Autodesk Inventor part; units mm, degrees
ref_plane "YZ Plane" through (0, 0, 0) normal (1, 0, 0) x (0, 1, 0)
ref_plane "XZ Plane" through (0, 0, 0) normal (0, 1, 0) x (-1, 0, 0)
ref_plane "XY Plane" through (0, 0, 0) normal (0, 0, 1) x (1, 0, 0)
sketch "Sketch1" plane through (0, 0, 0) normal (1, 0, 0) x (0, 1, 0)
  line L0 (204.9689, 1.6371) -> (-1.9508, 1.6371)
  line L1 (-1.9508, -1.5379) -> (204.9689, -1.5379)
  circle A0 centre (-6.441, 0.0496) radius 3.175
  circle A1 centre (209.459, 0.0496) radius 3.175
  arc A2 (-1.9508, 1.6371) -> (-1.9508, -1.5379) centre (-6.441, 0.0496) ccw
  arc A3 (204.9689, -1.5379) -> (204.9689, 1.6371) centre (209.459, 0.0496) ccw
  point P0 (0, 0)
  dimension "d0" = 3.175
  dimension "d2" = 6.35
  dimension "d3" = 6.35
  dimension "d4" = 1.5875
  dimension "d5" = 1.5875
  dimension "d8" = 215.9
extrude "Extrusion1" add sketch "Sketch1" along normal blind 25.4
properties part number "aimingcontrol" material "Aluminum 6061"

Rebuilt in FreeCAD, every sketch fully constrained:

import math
import FreeCAD as App
import Part
import Sketcher
from FreeCAD import Vector
Q = App.Units.Quantity

doc = App.newDocument("Part")
params = doc.addObject("Spreadsheet::Sheet", "Params")
for row, (alias, value) in enumerate([
    ("sketch1_diameter", "0.25 in"),
    ("sketch1_radius", "0.1875 in"),
    ("sketch1_height", "0.0625 in"),
    ("pad1_length", "1 in"),
], start=1):
    params.set(f"A{row}", alias)
    params.set(f"B{row}", "=" + value)
    params.setAlias(f"B{row}", alias)

body = doc.addObject("PartDesign::Body", "Body")

sketch1 = doc.addObject("Sketcher::SketchObject", "Sketch")
body.addObject(sketch1)
sketch1.AttachmentSupport = (doc.YZ_Plane, [""])
sketch1.MapMode = "FlatFace"
sketch1.addGeometry([
    Part.ArcOfCircle(Part.Circle(Vector(209.5, 0, 0), Vector(0, 0, 1), 4.8), math.radians(-161), math.radians(161)),
    Part.LineSegment(Vector(205, 1.6, 0), Vector(-2, 1.6, 0)),
    Part.ArcOfCircle(Part.Circle(Vector(-6.4, 0, 0), Vector(0, 0, 1), 4.8), math.radians(19), math.radians(341)),
    Part.LineSegment(Vector(-2, -1.5, 0), Vector(205, -1.5, 0)),
    Part.Circle(Vector(-6.4, 0, 0), Vector(0, 0, 1), 3.2),
    Part.Circle(Vector(209.5, 0, 0), Vector(0, 0, 1), 3.2),
], False)
sketch1.addConstraint([
    Sketcher.Constraint("Coincident", 0, 2, 1, 1),
    Sketcher.Constraint("Coincident", 1, 2, 2, 1),
    Sketcher.Constraint("Coincident", 2, 2, 3, 1),
    Sketcher.Constraint("Coincident", 3, 2, 0, 1),
    Sketcher.Constraint("Horizontal", 1),
    Sketcher.Constraint("Horizontal", 3),
    Sketcher.Constraint("Coincident", 4, 3, 2, 3),
    Sketcher.Constraint("Coincident", 5, 3, 0, 3),
    Sketcher.Constraint("Equal", 0, 2),
    Sketcher.Constraint("Equal", 4, 5),
    Sketcher.Constraint("Horizontal", 0, 3, 2, 3),
    Sketcher.Constraint("Vertical", 1, 2, 2, 2),
    Sketcher.Constraint("Diameter", 4, Q("0.25 in")),
    Sketcher.Constraint("DistanceX", 2, 3, 0, 3, Q("8.5 in")),
    Sketcher.Constraint("Radius", 0, Q("0.1875 in")),
    Sketcher.Constraint("DistanceY", 0, 3, 0, 2, Q("0.0625 in")),
    Sketcher.Constraint("DistanceX", 1, 2, -1, 1, Q("0.0768 in")),
    Sketcher.Constraint("DistanceY", -1, 1, 0, 3, Q("0.0496 mm")),
])
sketch1.setExpression("Constraints[12]", "Params.sketch1_diameter")
sketch1.setExpression("Constraints[14]", "Params.sketch1_radius")
sketch1.setExpression("Constraints[15]", "Params.sketch1_height")
pad1 = doc.addObject("PartDesign::Pad", "Pad")
body.addObject(pad1)
pad1.Profile = sketch1
pad1.setExpression("Length", "Params.pad1_length")

doc.recompute()
